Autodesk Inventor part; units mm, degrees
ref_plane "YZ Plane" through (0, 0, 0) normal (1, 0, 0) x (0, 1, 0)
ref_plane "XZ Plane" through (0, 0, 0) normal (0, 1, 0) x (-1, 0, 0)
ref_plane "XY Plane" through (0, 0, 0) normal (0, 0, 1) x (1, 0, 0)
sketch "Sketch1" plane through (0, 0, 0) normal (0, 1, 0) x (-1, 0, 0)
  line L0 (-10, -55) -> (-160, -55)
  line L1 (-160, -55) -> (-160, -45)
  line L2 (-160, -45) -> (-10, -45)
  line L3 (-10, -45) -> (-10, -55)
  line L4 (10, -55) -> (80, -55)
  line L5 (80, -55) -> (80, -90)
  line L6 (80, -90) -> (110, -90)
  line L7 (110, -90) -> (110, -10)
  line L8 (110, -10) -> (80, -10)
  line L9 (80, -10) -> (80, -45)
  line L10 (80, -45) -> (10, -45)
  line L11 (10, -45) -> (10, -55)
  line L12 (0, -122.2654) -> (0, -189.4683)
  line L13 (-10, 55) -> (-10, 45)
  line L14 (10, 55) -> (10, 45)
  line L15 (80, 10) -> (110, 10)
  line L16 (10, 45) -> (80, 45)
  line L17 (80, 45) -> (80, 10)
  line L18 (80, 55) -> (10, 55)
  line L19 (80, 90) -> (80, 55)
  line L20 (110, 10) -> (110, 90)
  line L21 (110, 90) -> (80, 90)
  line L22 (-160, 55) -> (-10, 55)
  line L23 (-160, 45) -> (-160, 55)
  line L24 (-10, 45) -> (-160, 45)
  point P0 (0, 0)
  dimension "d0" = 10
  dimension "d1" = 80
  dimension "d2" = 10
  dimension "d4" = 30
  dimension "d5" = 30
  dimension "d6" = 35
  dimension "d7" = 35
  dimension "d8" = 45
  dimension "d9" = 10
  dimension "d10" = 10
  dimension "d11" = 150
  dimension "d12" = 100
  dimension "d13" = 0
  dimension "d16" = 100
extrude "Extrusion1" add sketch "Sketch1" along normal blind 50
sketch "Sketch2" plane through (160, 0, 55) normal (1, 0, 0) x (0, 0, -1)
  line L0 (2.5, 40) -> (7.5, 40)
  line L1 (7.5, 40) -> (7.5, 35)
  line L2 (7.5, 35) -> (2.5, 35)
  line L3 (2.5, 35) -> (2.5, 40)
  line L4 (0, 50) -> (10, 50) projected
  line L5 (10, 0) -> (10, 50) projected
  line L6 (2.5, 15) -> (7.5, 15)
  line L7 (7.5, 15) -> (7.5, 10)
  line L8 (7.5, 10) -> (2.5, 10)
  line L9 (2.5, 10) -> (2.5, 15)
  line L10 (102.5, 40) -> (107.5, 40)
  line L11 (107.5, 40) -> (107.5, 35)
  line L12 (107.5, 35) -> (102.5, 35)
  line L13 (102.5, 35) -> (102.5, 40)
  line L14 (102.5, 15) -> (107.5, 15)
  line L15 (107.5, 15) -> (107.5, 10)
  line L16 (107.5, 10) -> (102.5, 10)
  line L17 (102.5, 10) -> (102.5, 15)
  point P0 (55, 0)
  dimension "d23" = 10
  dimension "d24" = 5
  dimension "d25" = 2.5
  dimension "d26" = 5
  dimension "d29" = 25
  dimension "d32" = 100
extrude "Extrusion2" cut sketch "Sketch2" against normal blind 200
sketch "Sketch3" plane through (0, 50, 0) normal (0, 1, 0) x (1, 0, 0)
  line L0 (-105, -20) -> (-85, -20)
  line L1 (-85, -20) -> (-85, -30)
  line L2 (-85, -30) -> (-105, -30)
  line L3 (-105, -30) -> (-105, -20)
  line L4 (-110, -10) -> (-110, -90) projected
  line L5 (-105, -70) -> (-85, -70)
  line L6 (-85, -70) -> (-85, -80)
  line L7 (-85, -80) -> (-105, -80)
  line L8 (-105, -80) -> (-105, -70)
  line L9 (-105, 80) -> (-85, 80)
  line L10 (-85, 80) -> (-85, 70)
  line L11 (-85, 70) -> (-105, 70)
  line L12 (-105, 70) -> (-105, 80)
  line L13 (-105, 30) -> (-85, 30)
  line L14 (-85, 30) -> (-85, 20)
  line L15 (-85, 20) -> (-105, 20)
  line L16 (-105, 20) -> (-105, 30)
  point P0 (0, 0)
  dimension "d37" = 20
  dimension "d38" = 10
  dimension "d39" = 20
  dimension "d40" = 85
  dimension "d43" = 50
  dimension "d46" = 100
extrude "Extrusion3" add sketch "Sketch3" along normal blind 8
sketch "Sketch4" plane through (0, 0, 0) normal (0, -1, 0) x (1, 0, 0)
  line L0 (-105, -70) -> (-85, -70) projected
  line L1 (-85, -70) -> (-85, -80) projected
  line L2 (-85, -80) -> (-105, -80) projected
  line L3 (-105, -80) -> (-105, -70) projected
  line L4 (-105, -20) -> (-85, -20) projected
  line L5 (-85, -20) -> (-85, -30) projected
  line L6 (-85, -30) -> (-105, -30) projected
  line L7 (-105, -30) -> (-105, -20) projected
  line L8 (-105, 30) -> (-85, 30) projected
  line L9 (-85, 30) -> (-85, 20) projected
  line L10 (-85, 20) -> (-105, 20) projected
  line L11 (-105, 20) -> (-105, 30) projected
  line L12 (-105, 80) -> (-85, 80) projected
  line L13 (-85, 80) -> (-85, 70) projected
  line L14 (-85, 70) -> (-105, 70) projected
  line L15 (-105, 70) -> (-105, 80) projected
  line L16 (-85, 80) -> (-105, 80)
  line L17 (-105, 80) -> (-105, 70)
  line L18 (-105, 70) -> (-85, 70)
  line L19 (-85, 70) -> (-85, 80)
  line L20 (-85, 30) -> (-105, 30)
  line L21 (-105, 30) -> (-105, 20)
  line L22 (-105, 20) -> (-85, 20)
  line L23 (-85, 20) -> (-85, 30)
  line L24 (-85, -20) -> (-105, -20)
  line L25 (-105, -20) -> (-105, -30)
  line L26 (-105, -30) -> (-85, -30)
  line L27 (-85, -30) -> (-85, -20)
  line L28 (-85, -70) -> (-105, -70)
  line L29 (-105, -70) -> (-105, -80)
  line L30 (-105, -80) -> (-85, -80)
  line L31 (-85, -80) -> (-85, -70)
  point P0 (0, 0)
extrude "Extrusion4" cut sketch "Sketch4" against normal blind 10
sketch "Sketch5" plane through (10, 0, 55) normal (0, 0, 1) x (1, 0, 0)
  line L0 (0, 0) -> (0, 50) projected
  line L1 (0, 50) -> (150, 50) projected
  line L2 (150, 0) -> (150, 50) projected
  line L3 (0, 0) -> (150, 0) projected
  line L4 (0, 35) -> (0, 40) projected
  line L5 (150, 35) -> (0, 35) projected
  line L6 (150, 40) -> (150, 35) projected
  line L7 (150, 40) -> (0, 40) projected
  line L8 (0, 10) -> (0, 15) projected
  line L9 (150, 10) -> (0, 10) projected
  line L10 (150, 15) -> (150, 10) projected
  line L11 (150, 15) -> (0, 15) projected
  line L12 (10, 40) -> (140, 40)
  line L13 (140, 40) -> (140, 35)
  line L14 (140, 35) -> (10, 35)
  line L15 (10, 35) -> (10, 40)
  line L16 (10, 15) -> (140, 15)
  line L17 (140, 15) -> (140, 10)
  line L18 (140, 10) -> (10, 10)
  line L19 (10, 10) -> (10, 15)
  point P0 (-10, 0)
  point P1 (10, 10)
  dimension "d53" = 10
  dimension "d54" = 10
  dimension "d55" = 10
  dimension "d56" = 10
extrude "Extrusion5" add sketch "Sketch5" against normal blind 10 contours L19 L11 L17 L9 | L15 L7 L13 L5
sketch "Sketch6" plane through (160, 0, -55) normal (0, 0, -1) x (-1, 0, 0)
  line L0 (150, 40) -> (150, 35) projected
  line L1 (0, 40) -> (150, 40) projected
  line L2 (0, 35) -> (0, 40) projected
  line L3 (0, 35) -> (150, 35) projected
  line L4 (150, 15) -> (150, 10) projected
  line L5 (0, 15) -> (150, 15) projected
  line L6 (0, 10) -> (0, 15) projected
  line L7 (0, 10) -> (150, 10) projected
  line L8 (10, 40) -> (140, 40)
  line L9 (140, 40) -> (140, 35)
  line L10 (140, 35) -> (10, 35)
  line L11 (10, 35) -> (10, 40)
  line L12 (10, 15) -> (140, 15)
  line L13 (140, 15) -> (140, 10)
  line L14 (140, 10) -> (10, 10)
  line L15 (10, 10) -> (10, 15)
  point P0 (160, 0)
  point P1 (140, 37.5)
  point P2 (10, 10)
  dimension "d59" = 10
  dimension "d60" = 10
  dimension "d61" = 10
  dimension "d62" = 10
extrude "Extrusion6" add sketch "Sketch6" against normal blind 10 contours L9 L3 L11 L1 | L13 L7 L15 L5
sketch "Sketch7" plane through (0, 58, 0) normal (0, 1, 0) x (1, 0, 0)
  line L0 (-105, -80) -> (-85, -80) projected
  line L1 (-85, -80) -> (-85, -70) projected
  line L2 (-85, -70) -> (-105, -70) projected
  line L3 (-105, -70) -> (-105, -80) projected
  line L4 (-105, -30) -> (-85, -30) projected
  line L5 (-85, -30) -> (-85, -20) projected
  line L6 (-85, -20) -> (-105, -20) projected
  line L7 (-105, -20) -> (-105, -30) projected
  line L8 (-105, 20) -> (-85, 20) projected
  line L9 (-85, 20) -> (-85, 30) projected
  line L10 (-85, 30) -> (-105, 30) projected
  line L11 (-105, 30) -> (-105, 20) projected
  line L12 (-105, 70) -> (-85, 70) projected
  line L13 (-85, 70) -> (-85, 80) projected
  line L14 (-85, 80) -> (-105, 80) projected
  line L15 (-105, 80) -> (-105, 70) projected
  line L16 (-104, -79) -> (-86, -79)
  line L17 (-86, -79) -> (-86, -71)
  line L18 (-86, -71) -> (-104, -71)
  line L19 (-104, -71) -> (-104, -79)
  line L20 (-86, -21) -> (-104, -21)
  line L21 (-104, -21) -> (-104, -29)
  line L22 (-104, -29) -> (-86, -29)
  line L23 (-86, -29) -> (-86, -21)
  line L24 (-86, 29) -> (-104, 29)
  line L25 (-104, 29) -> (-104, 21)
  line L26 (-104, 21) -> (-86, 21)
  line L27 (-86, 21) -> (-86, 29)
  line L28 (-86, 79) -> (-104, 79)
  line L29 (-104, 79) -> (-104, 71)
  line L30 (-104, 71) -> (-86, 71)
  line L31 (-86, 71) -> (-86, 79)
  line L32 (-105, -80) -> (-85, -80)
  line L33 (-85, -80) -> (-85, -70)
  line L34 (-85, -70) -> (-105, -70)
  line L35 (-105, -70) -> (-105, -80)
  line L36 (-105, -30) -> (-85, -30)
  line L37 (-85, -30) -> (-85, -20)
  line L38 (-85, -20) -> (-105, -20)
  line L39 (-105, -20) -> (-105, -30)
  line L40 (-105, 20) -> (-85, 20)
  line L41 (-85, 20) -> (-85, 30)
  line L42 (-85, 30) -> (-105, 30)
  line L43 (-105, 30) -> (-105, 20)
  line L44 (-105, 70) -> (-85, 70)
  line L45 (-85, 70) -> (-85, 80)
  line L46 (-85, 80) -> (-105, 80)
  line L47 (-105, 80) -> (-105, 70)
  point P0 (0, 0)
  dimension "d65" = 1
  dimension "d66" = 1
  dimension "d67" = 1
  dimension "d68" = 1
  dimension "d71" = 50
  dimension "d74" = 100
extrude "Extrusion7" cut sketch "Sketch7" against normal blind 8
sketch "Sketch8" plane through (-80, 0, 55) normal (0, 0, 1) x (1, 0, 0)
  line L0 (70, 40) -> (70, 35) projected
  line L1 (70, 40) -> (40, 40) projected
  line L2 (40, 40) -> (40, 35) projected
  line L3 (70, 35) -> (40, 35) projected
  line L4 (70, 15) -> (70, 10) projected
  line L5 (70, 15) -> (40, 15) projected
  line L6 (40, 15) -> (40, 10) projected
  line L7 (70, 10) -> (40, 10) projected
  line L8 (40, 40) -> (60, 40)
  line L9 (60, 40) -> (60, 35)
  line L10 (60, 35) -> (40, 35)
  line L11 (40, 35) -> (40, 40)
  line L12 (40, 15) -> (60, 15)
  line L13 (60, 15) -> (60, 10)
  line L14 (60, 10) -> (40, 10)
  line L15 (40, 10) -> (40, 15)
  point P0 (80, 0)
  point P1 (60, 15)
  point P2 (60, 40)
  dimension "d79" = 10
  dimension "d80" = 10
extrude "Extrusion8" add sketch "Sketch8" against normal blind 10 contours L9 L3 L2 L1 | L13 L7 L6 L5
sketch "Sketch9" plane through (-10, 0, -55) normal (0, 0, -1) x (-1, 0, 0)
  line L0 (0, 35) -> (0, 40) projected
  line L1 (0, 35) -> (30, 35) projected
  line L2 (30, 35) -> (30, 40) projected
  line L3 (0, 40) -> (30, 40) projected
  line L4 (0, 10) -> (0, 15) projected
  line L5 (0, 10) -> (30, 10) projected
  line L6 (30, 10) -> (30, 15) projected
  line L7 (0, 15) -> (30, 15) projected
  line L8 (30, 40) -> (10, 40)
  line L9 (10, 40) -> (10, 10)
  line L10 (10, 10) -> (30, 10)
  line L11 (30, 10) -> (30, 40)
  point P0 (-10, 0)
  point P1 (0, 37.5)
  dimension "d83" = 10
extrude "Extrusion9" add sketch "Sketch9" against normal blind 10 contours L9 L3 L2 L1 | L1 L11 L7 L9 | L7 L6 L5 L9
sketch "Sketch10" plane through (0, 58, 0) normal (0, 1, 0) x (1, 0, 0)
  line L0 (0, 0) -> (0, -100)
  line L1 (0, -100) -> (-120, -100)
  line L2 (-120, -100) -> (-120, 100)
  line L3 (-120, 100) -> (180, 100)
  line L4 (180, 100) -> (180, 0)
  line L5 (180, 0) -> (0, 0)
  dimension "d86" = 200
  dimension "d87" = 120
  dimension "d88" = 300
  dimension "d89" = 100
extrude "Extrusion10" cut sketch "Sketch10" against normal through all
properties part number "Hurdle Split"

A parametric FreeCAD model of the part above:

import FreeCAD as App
import Part
import Sketcher

doc = App.newDocument("Part")
body = doc.addObject("PartDesign::Body", "Body")
body.AllowCompound = True

# Sketch on XZ plane
sketch1 = body.newObject("Sketcher::SketchObject", "Sketch")
sketch1.AttachmentSupport = (doc.getObject("XZ_Plane"), [""])
sketch1.MapMode = "FlatFace"
sketch1.addGeometry([
    Part.LineSegment(App.Vector(160, -55, 0), App.Vector(10, -55, 0)),  # 0
    Part.LineSegment(App.Vector(10, -55, 0), App.Vector(10, -45, 0)),  # 1
    Part.LineSegment(App.Vector(10, -45, 0), App.Vector(160, -45, 0)),  # 2
    Part.LineSegment(App.Vector(160, -45, 0), App.Vector(160, -55, 0)),  # 3
    Part.LineSegment(App.Vector(-10, -45, 0), App.Vector(-10, -55, 0)),  # 4
    Part.LineSegment(App.Vector(-10, -55, 0), App.Vector(-80, -55, 0)),  # 5
    Part.LineSegment(App.Vector(-80, -55, 0), App.Vector(-80, -90, 0)),  # 6
    Part.LineSegment(App.Vector(-80, -90, 0), App.Vector(-110, -90, 0)),  # 7
    Part.LineSegment(App.Vector(-110, -90, 0), App.Vector(-110, -10, 0)),  # 8
    Part.LineSegment(App.Vector(-110, -10, 0), App.Vector(-80, -10, 0)),  # 9
    Part.LineSegment(App.Vector(-80, -10, 0), App.Vector(-80, -45, 0)),  # 10
    Part.LineSegment(App.Vector(-80, -45, 0), App.Vector(-10, -45, 0)),  # 11
    Part.LineSegment(App.Vector(10, 45, 0), App.Vector(10, 55, 0)),  # 12
    Part.LineSegment(App.Vector(10, 55, 0), App.Vector(160, 55, 0)),  # 13
    Part.LineSegment(App.Vector(160, 55, 0), App.Vector(160, 45, 0)),  # 14
    Part.LineSegment(App.Vector(160, 45, 0), App.Vector(10, 45, 0)),  # 15
    Part.LineSegment(App.Vector(-80, 55, 0), App.Vector(-10, 55, 0)),  # 16
    Part.LineSegment(App.Vector(-10, 55, 0), App.Vector(-10, 45, 0)),  # 17
    Part.LineSegment(App.Vector(-10, 45, 0), App.Vector(-80, 45, 0)),  # 18
    Part.LineSegment(App.Vector(-80, 45, 0), App.Vector(-80, 10, 0)),  # 19
    Part.LineSegment(App.Vector(-80, 10, 0), App.Vector(-110, 10, 0)),  # 20
    Part.LineSegment(App.Vector(-110, 10, 0), App.Vector(-110, 90, 0)),  # 21
    Part.LineSegment(App.Vector(-110, 90, 0), App.Vector(-80, 90, 0)),  # 22
    Part.LineSegment(App.Vector(-80, 90, 0), App.Vector(-80, 55, 0)),  # 23
], False)
sketch1.addConstraint([
    Sketcher.Constraint("Coincident", 0, 2, 1, 1),
    Sketcher.Constraint("Coincident", 1, 2, 2, 1),
    Sketcher.Constraint("Coincident", 2, 2, 3, 1),
    Sketcher.Constraint("Coincident", 3, 2, 0, 1),
    Sketcher.Constraint("Coincident", 4, 2, 5, 1),
    Sketcher.Constraint("Coincident", 5, 2, 6, 1),
    Sketcher.Constraint("Coincident", 6, 2, 7, 1),
    Sketcher.Constraint("Coincident", 7, 2, 8, 1),
    Sketcher.Constraint("Coincident", 8, 2, 9, 1),
    Sketcher.Constraint("Coincident", 9, 2, 10, 1),
    Sketcher.Constraint("Coincident", 10, 2, 11, 1),
    Sketcher.Constraint("Coincident", 11, 2, 4, 1),
    Sketcher.Constraint("Coincident", 12, 2, 13, 1),
    Sketcher.Constraint("Coincident", 13, 2, 14, 1),
    Sketcher.Constraint("Coincident", 14, 2, 15, 1),
    Sketcher.Constraint("Coincident", 15, 2, 12, 1),
    Sketcher.Constraint("Coincident", 16, 2, 17, 1),
    Sketcher.Constraint("Coincident", 17, 2, 18, 1),
    Sketcher.Constraint("Coincident", 18, 2, 19, 1),
    Sketcher.Constraint("Coincident", 19, 2, 20, 1),
    Sketcher.Constraint("Coincident", 20, 2, 21, 1),
    Sketcher.Constraint("Coincident", 21, 2, 22, 1),
    Sketcher.Constraint("Coincident", 22, 2, 23, 1),
    Sketcher.Constraint("Coincident", 23, 2, 16, 1),
    Sketcher.Constraint("Horizontal", 0),
    Sketcher.Constraint("Vertical", 1),
    Sketcher.Constraint("Horizontal", 2),
    Sketcher.Constraint("Vertical", 3),
    Sketcher.Constraint("Vertical", 4),
    Sketcher.Constraint("Horizontal", 5),
    Sketcher.Constraint("Vertical", 6),
    Sketcher.Constraint("Horizontal", 7),
    Sketcher.Constraint("Vertical", 8),
    Sketcher.Constraint("Horizontal", 9),
    Sketcher.Constraint("Vertical", 10),
    Sketcher.Constraint("Horizontal", 11),
    Sketcher.Constraint("Vertical", 12),
    Sketcher.Constraint("Horizontal", 13),
    Sketcher.Constraint("Vertical", 14),
    Sketcher.Constraint("Horizontal", 15),
    Sketcher.Constraint("Horizontal", 16),
    Sketcher.Constraint("Vertical", 17),
    Sketcher.Constraint("Horizontal", 18),
    Sketcher.Constraint("Vertical", 19),
    Sketcher.Constraint("Horizontal", 20),
    Sketcher.Constraint("Vertical", 21),
    Sketcher.Constraint("Horizontal", 22),
    Sketcher.Constraint("Vertical", 23),
    Sketcher.Constraint("Symmetric", 4, 2, 12, 2, -1, 1),
    Sketcher.Constraint("Symmetric", 0, 2, 16, 2, -1, 1),
    Sketcher.Constraint("Symmetric", 0, 2, 4, 2, -2),
    Sketcher.Constraint("Symmetric", 2, 2, 14, 2, -1),
    Sketcher.Constraint("Symmetric", 10, 2, 18, 2, -1),
    Sketcher.Constraint("Symmetric", 8, 2, 20, 2, -1),
    Sketcher.Constraint("Symmetric", 6, 2, 22, 2, -1),
    Sketcher.Constraint("Horizontal", 2, 2, 10, 2),
    Sketcher.Constraint("Vertical", 6, 2, 9, 2),
    Sketcher.Constraint("Equal", 6, 10),
    Sketcher.Constraint("DistanceX", 0, 2, 0, 1, 150.0),
    Sketcher.Constraint("DistanceX", 7, 2, 7, 1, 30.0),
    Sketcher.Constraint("DistanceY", 1, 1, 1, 2, 10.0),
    Sketcher.Constraint("DistanceY", 6, 2, 6, 1, 35.0),
    Sketcher.Constraint("DistanceX", -1, 1, 0, 2, 10.0),
    Sketcher.Constraint("DistanceY", 1, 2, -1, 1, 45.0),
    Sketcher.Constraint("DistanceX", 5, 2, -1, 1, 80.0),
])
pad1 = body.newObject("PartDesign::Pad", "Pad")
pad1.Profile = sketch1
pad1.Length = 50
pad1.Reversed = True

# Sketch on YZ plane
sketch2 = body.newObject("Sketcher::SketchObject", "Sketch001")
sketch2.AttachmentSupport = (doc.getObject("YZ_Plane"), [""])
sketch2.MapMode = "FlatFace"
sketch2.AttachmentOffset = App.Placement(App.Vector(0, 0, 160), App.Rotation())
sketch2.addGeometry([
    Part.LineSegment(App.Vector(40, 48, 0), App.Vector(40, 52, 0)),  # 0
    Part.LineSegment(App.Vector(40, 52, 0), App.Vector(35, 52, 0)),  # 1
    Part.LineSegment(App.Vector(35, 52, 0), App.Vector(35, 48, 0)),  # 2
    Part.LineSegment(App.Vector(35, 48, 0), App.Vector(40, 48, 0)),  # 3
    Part.LineSegment(App.Vector(15, 48, 0), App.Vector(15, 52, 0)),  # 4
    Part.LineSegment(App.Vector(15, 52, 0), App.Vector(10, 52, 0)),  # 5
    Part.LineSegment(App.Vector(10, 52, 0), App.Vector(10, 48, 0)),  # 6
    Part.LineSegment(App.Vector(10, 48, 0), App.Vector(15, 48, 0)),  # 7
    Part.LineSegment(App.Vector(40, -52, 0), App.Vector(40, -48, 0)),  # 8
    Part.LineSegment(App.Vector(40, -48, 0), App.Vector(35, -48, 0)),  # 9
    Part.LineSegment(App.Vector(35, -48, 0), App.Vector(35, -52, 0)),  # 10
    Part.LineSegment(App.Vector(35, -52, 0), App.Vector(40, -52, 0)),  # 11
    Part.LineSegment(App.Vector(15, -52, 0), App.Vector(15, -48, 0)),  # 12
    Part.LineSegment(App.Vector(15, -48, 0), App.Vector(10, -48, 0)),  # 13
    Part.LineSegment(App.Vector(10, -48, 0), App.Vector(10, -52, 0)),  # 14
    Part.LineSegment(App.Vector(10, -52, 0), App.Vector(15, -52, 0)),  # 15
], False)
sketch2.addConstraint([
    Sketcher.Constraint("Coincident", 0, 2, 1, 1),
    Sketcher.Constraint("Coincident", 1, 2, 2, 1),
    Sketcher.Constraint("Coincident", 2, 2, 3, 1),
    Sketcher.Constraint("Coincident", 3, 2, 0, 1),
    Sketcher.Constraint("Coincident", 4, 2, 5, 1),
    Sketcher.Constraint("Coincident", 5, 2, 6, 1),
    Sketcher.Constraint("Coincident", 6, 2, 7, 1),
    Sketcher.Constraint("Coincident", 7, 2, 4, 1),
    Sketcher.Constraint("Coincident", 8, 2, 9, 1),
    Sketcher.Constraint("Coincident", 9, 2, 10, 1),
    Sketcher.Constraint("Coincident", 10, 2, 11, 1),
    Sketcher.Constraint("Coincident", 11, 2, 8, 1),
    Sketcher.Constraint("Coincident", 12, 2, 13, 1),
    Sketcher.Constraint("Coincident", 13, 2, 14, 1),
    Sketcher.Constraint("Coincident", 14, 2, 15, 1),
    Sketcher.Constraint("Coincident", 15, 2, 12, 1),
    Sketcher.Constraint("Vertical", 0),
    Sketcher.Constraint("Horizontal", 1),
    Sketcher.Constraint("Vertical", 2),
    Sketcher.Constraint("Horizontal", 3),
    Sketcher.Constraint("Vertical", 4),
    Sketcher.Constraint("Horizontal", 5),
    Sketcher.Constraint("Vertical", 6),
    Sketcher.Constraint("Horizontal", 7),
    Sketcher.Constraint("Vertical", 8),
    Sketcher.Constraint("Horizontal", 9),
    Sketcher.Constraint("Vertical", 10),
    Sketcher.Constraint("Horizontal", 11),
    Sketcher.Constraint("Vertical", 12),
    Sketcher.Constraint("Horizontal", 13),
    Sketcher.Constraint("Vertical", 14),
    Sketcher.Constraint("Horizontal", 15),
    Sketcher.Constraint("Symmetric", 3, 2, 8, 2, -1),
    Sketcher.Constraint("Symmetric", 1, 2, 10, 2, -1),
    Sketcher.Constraint("Symmetric", 7, 2, 12, 2, -1),
    Sketcher.Constraint("Symmetric", 5, 2, 14, 2, -1),
    Sketcher.Constraint("Horizontal", 1, 2, 4, 2),
    Sketcher.Constraint("Horizontal", 3, 2, 6, 2),
    Sketcher.Constraint("Equal", 3, 5),
    Sketcher.Constraint("Equal", 15, 0),
    Sketcher.Constraint("DistanceX", 1, 2, 1, 1, 5.0),
    Sketcher.Constraint("DistanceX", -1, 1, 5, 2, 10.0),
    Sketcher.Constraint("DistanceX", 4, 2, 0, 2, 25.0),
    Sketcher.Constraint("DistanceY", 8, 2, 0, 2, 100.0),
])
pocket1 = body.newObject("PartDesign::Pocket", "Pocket")
pocket1.Profile = sketch2
pocket1.Length = 200

# Sketch on XZ plane
sketch3 = body.newObject("Sketcher::SketchObject", "Sketch002")
sketch3.AttachmentSupport = (doc.getObject("XZ_Plane"), [""])
sketch3.MapMode = "FlatFace"
sketch3.AttachmentOffset = App.Placement(App.Vector(0, 0, -50), App.Rotation())
sketch3.addGeometry([
    Part.LineSegment(App.Vector(-85, 20, 0), App.Vector(-105, 20, 0)),  # 0
    Part.LineSegment(App.Vector(-105, 20, 0), App.Vector(-105, 30, 0)),  # 1
    Part.LineSegment(App.Vector(-105, 30, 0), App.Vector(-85, 30, 0)),  # 2
    Part.LineSegment(App.Vector(-85, 30, 0), App.Vector(-85, 20, 0)),  # 3
    Part.LineSegment(App.Vector(-85, 70, 0), App.Vector(-105, 70, 0)),  # 4
    Part.LineSegment(App.Vector(-105, 70, 0), App.Vector(-105, 80, 0)),  # 5
    Part.LineSegment(App.Vector(-105, 80, 0), App.Vector(-85, 80, 0)),  # 6
    Part.LineSegment(App.Vector(-85, 80, 0), App.Vector(-85, 70, 0)),  # 7
    Part.LineSegment(App.Vector(-85, -80, 0), App.Vector(-105, -80, 0)),  # 8
    Part.LineSegment(App.Vector(-105, -80, 0), App.Vector(-105, -70, 0)),  # 9
    Part.LineSegment(App.Vector(-105, -70, 0), App.Vector(-85, -70, 0)),  # 10
    Part.LineSegment(App.Vector(-85, -70, 0), App.Vector(-85, -80, 0)),  # 11
    Part.LineSegment(App.Vector(-85, -30, 0), App.Vector(-105, -30, 0)),  # 12
    Part.LineSegment(App.Vector(-105, -30, 0), App.Vector(-105, -20, 0)),  # 13
    Part.LineSegment(App.Vector(-105, -20, 0), App.Vector(-85, -20, 0)),  # 14
    Part.LineSegment(App.Vector(-85, -20, 0), App.Vector(-85, -30, 0)),  # 15
], False)
sketch3.addConstraint([
    Sketcher.Constraint("Coincident", 0, 2, 1, 1),
    Sketcher.Constraint("Coincident", 1, 2, 2, 1),
    Sketcher.Constraint("Coincident", 2, 2, 3, 1),
    Sketcher.Constraint("Coincident", 3, 2, 0, 1),
    Sketcher.Constraint("Coincident", 4, 2, 5, 1),
    Sketcher.Constraint("Coincident", 5, 2, 6, 1),
    Sketcher.Constraint("Coincident", 6, 2, 7, 1),
    Sketcher.Constraint("Coincident", 7, 2, 4, 1),
    Sketcher.Constraint("Coincident", 8, 2, 9, 1),
    Sketcher.Constraint("Coincident", 9, 2, 10, 1),
    Sketcher.Constraint("Coincident", 10, 2, 11, 1),
    Sketcher.Constraint("Coincident", 11, 2, 8, 1),
    Sketcher.Constraint("Coincident", 12, 2, 13, 1),
    Sketcher.Constraint("Coincident", 13, 2, 14, 1),
    Sketcher.Constraint("Coincident", 14, 2, 15, 1),
    Sketcher.Constraint("Coincident", 15, 2, 12, 1),
    Sketcher.Constraint("Horizontal", 0),
    Sketcher.Constraint("Vertical", 1),
    Sketcher.Constraint("Horizontal", 2),
    Sketcher.Constraint("Vertical", 3),
    Sketcher.Constraint("Horizontal", 4),
    Sketcher.Constraint("Vertical", 5),
    Sketcher.Constraint("Horizontal", 6),
    Sketcher.Constraint("Vertical", 7),
    Sketcher.Constraint("Horizontal", 8),
    Sketcher.Constraint("Vertical", 9),
    Sketcher.Constraint("Horizontal", 10),
    Sketcher.Constraint("Vertical", 11),
    Sketcher.Constraint("Horizontal", 12),
    Sketcher.Constraint("Vertical", 13),
    Sketcher.Constraint("Horizontal", 14),
    Sketcher.Constraint("Vertical", 15),
    Sketcher.Constraint("Symmetric", 5, 2, 8, 2, -1),
    Sketcher.Constraint("Symmetric", 7, 2, 10, 2, -1),
    Sketcher.Constraint("Symmetric", 1, 2, 12, 2, -1),
    Sketcher.Constraint("Symmetric", 3, 2, 14, 2, -1),
    Sketcher.Constraint("Vertical", 1, 2, 4, 2),
    Sketcher.Constraint("Vertical", 3, 2, 6, 2),
    Sketcher.Constraint("Equal", 3, 5),
    Sketcher.Constraint("DistanceX", 0, 2, 0, 1, 20.0),
    Sketcher.Constraint("DistanceY", 1, 1, 1, 2, 10.0),
    Sketcher.Constraint("DistanceY", -1, 1, 0, 2, 20.0),
    Sketcher.Constraint("DistanceX", 2, 2, -1, 1, 85.0),
    Sketcher.Constraint("DistanceY", 0, 2, 4, 2, 50.0),
])
pad2 = body.newObject("PartDesign::Pad", "Pad001")
pad2.Profile = sketch3
pad2.Length = 8
pad2.Reversed = True

# Sketch on XZ plane
sketch4 = body.newObject("Sketcher::SketchObject", "Sketch003")
sketch4.AttachmentSupport = (doc.getObject("XZ_Plane"), [""])
sketch4.MapMode = "FlatFace"
sketch4.addGeometry([
    Part.LineSegment(App.Vector(-85, -70, 0), App.Vector(-105, -70, 0)),  # 0
    Part.LineSegment(App.Vector(-105, -70, 0), App.Vector(-105, -80, 0)),  # 1
    Part.LineSegment(App.Vector(-105, -80, 0), App.Vector(-85, -80, 0)),  # 2
    Part.LineSegment(App.Vector(-85, -80, 0), App.Vector(-85, -70, 0)),  # 3
    Part.LineSegment(App.Vector(-85, -20, 0), App.Vector(-105, -20, 0)),  # 4
    Part.LineSegment(App.Vector(-105, -20, 0), App.Vector(-105, -30, 0)),  # 5
    Part.LineSegment(App.Vector(-105, -30, 0), App.Vector(-85, -30, 0)),  # 6
    Part.LineSegment(App.Vector(-85, -30, 0), App.Vector(-85, -20, 0)),  # 7
    Part.LineSegment(App.Vector(-85, 30, 0), App.Vector(-105, 30, 0)),  # 8
    Part.LineSegment(App.Vector(-105, 30, 0), App.Vector(-105, 20, 0)),  # 9
    Part.LineSegment(App.Vector(-105, 20, 0), App.Vector(-85, 20, 0)),  # 10
    Part.LineSegment(App.Vector(-85, 20, 0), App.Vector(-85, 30, 0)),  # 11
    Part.LineSegment(App.Vector(-85, 80, 0), App.Vector(-105, 80, 0)),  # 12
    Part.LineSegment(App.Vector(-105, 80, 0), App.Vector(-105, 70, 0)),  # 13
    Part.LineSegment(App.Vector(-105, 70, 0), App.Vector(-85, 70, 0)),  # 14
    Part.LineSegment(App.Vector(-85, 70, 0), App.Vector(-85, 80, 0)),  # 15
], False)
sketch4.addConstraint([
    Sketcher.Constraint("Coincident", 0, 2, 1, 1),
    Sketcher.Constraint("Coincident", 1, 2, 2, 1),
    Sketcher.Constraint("Coincident", 2, 2, 3, 1),
    Sketcher.Constraint("Coincident", 3, 2, 0, 1),
    Sketcher.Constraint("Coincident", 4, 2, 5, 1),
    Sketcher.Constraint("Coincident", 5, 2, 6, 1),
    Sketcher.Constraint("Coincident", 6, 2, 7, 1),
    Sketcher.Constraint("Coincident", 7, 2, 4, 1),
    Sketcher.Constraint("Coincident", 8, 2, 9, 1),
    Sketcher.Constraint("Coincident", 9, 2, 10, 1),
    Sketcher.Constraint("Coincident", 10, 2, 11, 1),
    Sketcher.Constraint("Coincident", 11, 2, 8, 1),
    Sketcher.Constraint("Coincident", 12, 2, 13, 1),
    Sketcher.Constraint("Coincident", 13, 2, 14, 1),
    Sketcher.Constraint("Coincident", 14, 2, 15, 1),
    Sketcher.Constraint("Coincident", 15, 2, 12, 1),
    Sketcher.Constraint("Horizontal", 0),
    Sketcher.Constraint("Vertical", 1),
    Sketcher.Constraint("Horizontal", 2),
    Sketcher.Constraint("Vertical", 3),
    Sketcher.Constraint("Horizontal", 4),
    Sketcher.Constraint("Vertical", 5),
    Sketcher.Constraint("Horizontal", 6),
    Sketcher.Constraint("Vertical", 7),
    Sketcher.Constraint("Horizontal", 8),
    Sketcher.Constraint("Vertical", 9),
    Sketcher.Constraint("Horizontal", 10),
    Sketcher.Constraint("Vertical", 11),
    Sketcher.Constraint("Horizontal", 12),
    Sketcher.Constraint("Vertical", 13),
    Sketcher.Constraint("Horizontal", 14),
    Sketcher.Constraint("Vertical", 15),
    Sketcher.Constraint("Symmetric", 5, 2, 8, 2, -1),
    Sketcher.Constraint("Symmetric", 7, 2, 10, 2, -1),
    Sketcher.Constraint("Symmetric", 1, 2, 12, 2, -1),
    Sketcher.Constraint("Symmetric", 3, 2, 14, 2, -1),
    Sketcher.Constraint("Vertical", 1, 2, 4, 2),
    Sketcher.Constraint("Vertical", 3, 2, 6, 2),
    Sketcher.Constraint("Equal", 3, 5),
    Sketcher.Constraint("DistanceX", 0, 2, 0, 1, 20.0),
    Sketcher.Constraint("DistanceY", 1, 2, 1, 1, 10.0),
    Sketcher.Constraint("DistanceX", 0, 2, -1, 1, 105.0),
    Sketcher.Constraint("DistanceY", 0, 2, -1, 1, 70.0),
    Sketcher.Constraint("DistanceY", 4, 2, -1, 1, 20.0),
])
pocket2 = body.newObject("PartDesign::Pocket", "Pocket001")
pocket2.Profile = sketch4
pocket2.Length = 10

# Sketch on XY plane
sketch5 = body.newObject("Sketcher::SketchObject", "Sketch004")
sketch5.AttachmentSupport = (doc.getObject("XY_Plane"), [""])
sketch5.MapMode = "FlatFace"
sketch5.AttachmentOffset = App.Placement(App.Vector(0, 0, 55), App.Rotation())
sketch5.addGeometry([
    Part.LineSegment(App.Vector(20, 15, 0), App.Vector(20, 10, 0)),  # 0
    Part.LineSegment(App.Vector(20, 10, 0), App.Vector(150, 10, 0)),  # 1
    Part.LineSegment(App.Vector(150, 10, 0), App.Vector(150, 15, 0)),  # 2
    Part.LineSegment(App.Vector(150, 15, 0), App.Vector(20, 15, 0)),  # 3
    Part.LineSegment(App.Vector(20, 40, 0), App.Vector(20, 35, 0)),  # 4
    Part.LineSegment(App.Vector(20, 35, 0), App.Vector(150, 35, 0)),  # 5
    Part.LineSegment(App.Vector(150, 35, 0), App.Vector(150, 40, 0)),  # 6
    Part.LineSegment(App.Vector(150, 40, 0), App.Vector(20, 40, 0)),  # 7
], False)
sketch5.addConstraint([
    Sketcher.Constraint("Coincident", 0, 2, 1, 1),
    Sketcher.Constraint("Coincident", 1, 2, 2, 1),
    Sketcher.Constraint("Coincident", 2, 2, 3, 1),
    Sketcher.Constraint("Coincident", 3, 2, 0, 1),
    Sketcher.Constraint("Coincident", 4, 2, 5, 1),
    Sketcher.Constraint("Coincident", 5, 2, 6, 1),
    Sketcher.Constraint("Coincident", 6, 2, 7, 1),
    Sketcher.Constraint("Coincident", 7, 2, 4, 1),
    Sketcher.Constraint("Vertical", 0),
    Sketcher.Constraint("Horizontal", 1),
    Sketcher.Constraint("Vertical", 2),
    Sketcher.Constraint("Horizontal", 3),
    Sketcher.Constraint("Vertical", 4),
    Sketcher.Constraint("Horizontal", 5),
    Sketcher.Constraint("Vertical", 6),
    Sketcher.Constraint("Horizontal", 7),
    Sketcher.Constraint("Vertical", 3, 2, 4, 2),
    Sketcher.Constraint("Vertical", 2, 2, 5, 2),
    Sketcher.Constraint("Equal", 2, 4),
    Sketcher.Constraint("DistanceY", -1, 1, 0, 2, 10.0),
    Sketcher.Constraint("DistanceX", 1, 1, 1, 2, 130.0),
    Sketcher.Constraint("DistanceY", 0, 2, 0, 1, 5.0),
    Sketcher.Constraint("DistanceX", -1, 1, 0, 2, 20.0),
    Sketcher.Constraint("DistanceY", -1, 1, 4, 2, 35.0),
])
pad3 = body.newObject("PartDesign::Pad", "Pad002")
pad3.Profile = sketch5
pad3.Length = 10
pad3.Reversed = True

# Sketch on XY plane
sketch6 = body.newObject("Sketcher::SketchObject", "Sketch005")
sketch6.AttachmentSupport = (doc.getObject("XY_Plane"), [""])
sketch6.MapMode = "FlatFace"
sketch6.AttachmentOffset = App.Placement(App.Vector(0, 0, -55), App.Rotation())
sketch6.addGeometry([
    Part.LineSegment(App.Vector(20, 35, 0), App.Vector(20, 40, 0)),  # 0
    Part.LineSegment(App.Vector(20, 40, 0), App.Vector(150, 40, 0)),  # 1
    Part.LineSegment(App.Vector(150, 40, 0), App.Vector(150, 35, 0)),  # 2
    Part.LineSegment(App.Vector(150, 35, 0), App.Vector(20, 35, 0)),  # 3
    Part.LineSegment(App.Vector(20, 10, 0), App.Vector(20, 15, 0)),  # 4
    Part.LineSegment(App.Vector(20, 15, 0), App.Vector(150, 15, 0)),  # 5
    Part.LineSegment(App.Vector(150, 15, 0), App.Vector(150, 10, 0)),  # 6
    Part.LineSegment(App.Vector(150, 10, 0), App.Vector(20, 10, 0)),  # 7
], False)
sketch6.addConstraint([
    Sketcher.Constraint("Coincident", 0, 2, 1, 1),
    Sketcher.Constraint("Coincident", 1, 2, 2, 1),
    Sketcher.Constraint("Coincident", 2, 2, 3, 1),
    Sketcher.Constraint("Coincident", 3, 2, 0, 1),
    Sketcher.Constraint("Coincident", 4, 2, 5, 1),
    Sketcher.Constraint("Coincident", 5, 2, 6, 1),
    Sketcher.Constraint("Coincident", 6, 2, 7, 1),
    Sketcher.Constraint("Coincident", 7, 2, 4, 1),
    Sketcher.Constraint("Vertical", 0),
    Sketcher.Constraint("Horizontal", 1),
    Sketcher.Constraint("Vertical", 2),
    Sketcher.Constraint("Horizontal", 3),
    Sketcher.Constraint("Vertical", 4),
    Sketcher.Constraint("Horizontal", 5),
    Sketcher.Constraint("Vertical", 6),
    Sketcher.Constraint("Horizontal", 7),
    Sketcher.Constraint("Vertical", 3, 2, 4, 2),
    Sketcher.Constraint("Vertical", 2, 2, 5, 2),
    Sketcher.Constraint("Equal", 2, 4),
    Sketcher.Constraint("DistanceY", -1, 1, 6, 2, 10.0),
    Sketcher.Constraint("DistanceX", 1, 1, 1, 2, 130.0),
    Sketcher.Constraint("DistanceY", 0, 1, 0, 2, 5.0),
    Sketcher.Constraint("DistanceX", -1, 1, 0, 2, 20.0),
    Sketcher.Constraint("DistanceY", -1, 1, 0, 2, 40.0),
])
pad4 = body.newObject("PartDesign::Pad", "Pad003")
pad4.Profile = sketch6
pad4.Length = 10

# Sketch on XZ plane
sketch7 = body.newObject("Sketcher::SketchObject", "Sketch006")
sketch7.AttachmentSupport = (doc.getObject("XZ_Plane"), [""])
sketch7.MapMode = "FlatFace"
sketch7.AttachmentOffset = App.Placement(App.Vector(0, 0, -58), App.Rotation())
sketch7.addGeometry([
    Part.LineSegment(App.Vector(-105, 70, 0), App.Vector(-105, 80, 0)),  # 0
    Part.LineSegment(App.Vector(-105, 80, 0), App.Vector(-85, 80, 0)),  # 1
    Part.LineSegment(App.Vector(-85, 80, 0), App.Vector(-85, 70, 0)),  # 2
    Part.LineSegment(App.Vector(-85, 70, 0), App.Vector(-105, 70, 0)),  # 3
    Part.LineSegment(App.Vector(-86, 79, 0), App.Vector(-104, 79, 0)),  # 4
    Part.LineSegment(App.Vector(-104, 79, 0), App.Vector(-104, 71, 0)),  # 5
    Part.LineSegment(App.Vector(-104, 71, 0), App.Vector(-86, 71, 0)),  # 6
    Part.LineSegment(App.Vector(-86, 71, 0), App.Vector(-86, 79, 0)),  # 7
    Part.LineSegment(App.Vector(-105, 20, 0), App.Vector(-105, 30, 0)),  # 8
    Part.LineSegment(App.Vector(-105, 30, 0), App.Vector(-85, 30, 0)),  # 9
    Part.LineSegment(App.Vector(-85, 30, 0), App.Vector(-85, 20, 0)),  # 10
    Part.LineSegment(App.Vector(-85, 20, 0), App.Vector(-105, 20, 0)),  # 11
    Part.LineSegment(App.Vector(-104, 21, 0), App.Vector(-86, 21, 0)),  # 12
    Part.LineSegment(App.Vector(-86, 21, 0), App.Vector(-86, 29, 0)),  # 13
    Part.LineSegment(App.Vector(-86, 29, 0), App.Vector(-104, 29, 0)),  # 14
    Part.LineSegment(App.Vector(-104, 29, 0), App.Vector(-104, 21, 0)),  # 15
    Part.LineSegment(App.Vector(-105, -30, 0), App.Vector(-105, -20, 0)),  # 16
    Part.LineSegment(App.Vector(-105, -20, 0), App.Vector(-85, -20, 0)),  # 17
    Part.LineSegment(App.Vector(-85, -20, 0), App.Vector(-85, -30, 0)),  # 18
    Part.LineSegment(App.Vector(-85, -30, 0), App.Vector(-105, -30, 0)),  # 19
    Part.LineSegment(App.Vector(-104, -29, 0), App.Vector(-86, -29, 0)),  # 20
    Part.LineSegment(App.Vector(-86, -29, 0), App.Vector(-86, -21, 0)),  # 21
    Part.LineSegment(App.Vector(-86, -21, 0), App.Vector(-104, -21, 0)),  # 22
    Part.LineSegment(App.Vector(-104, -21, 0), App.Vector(-104, -29, 0)),  # 23
    Part.LineSegment(App.Vector(-105, -80, 0), App.Vector(-105, -70, 0)),  # 24
    Part.LineSegment(App.Vector(-105, -70, 0), App.Vector(-85, -70, 0)),  # 25
    Part.LineSegment(App.Vector(-85, -70, 0), App.Vector(-85, -80, 0)),  # 26
    Part.LineSegment(App.Vector(-85, -80, 0), App.Vector(-105, -80, 0)),  # 27
    Part.LineSegment(App.Vector(-104, -79, 0), App.Vector(-86, -79, 0)),  # 28
    Part.LineSegment(App.Vector(-86, -79, 0), App.Vector(-86, -71, 0)),  # 29
    Part.LineSegment(App.Vector(-86, -71, 0), App.Vector(-104, -71, 0)),  # 30
    Part.LineSegment(App.Vector(-104, -71, 0), App.Vector(-104, -79, 0)),  # 31
], False)
sketch7.addConstraint([
    Sketcher.Constraint("Coincident", 0, 2, 1, 1),
    Sketcher.Constraint("Coincident", 1, 2, 2, 1),
    Sketcher.Constraint("Coincident", 2, 2, 3, 1),
    Sketcher.Constraint("Coincident", 3, 2, 0, 1),
    Sketcher.Constraint("Coincident", 4, 2, 5, 1),
    Sketcher.Constraint("Coincident", 5, 2, 6, 1),
    Sketcher.Constraint("Coincident", 6, 2, 7, 1),
    Sketcher.Constraint("Coincident", 7, 2, 4, 1),
    Sketcher.Constraint("Coincident", 8, 2, 9, 1),
    Sketcher.Constraint("Coincident", 9, 2, 10, 1),
    Sketcher.Constraint("Coincident", 10, 2, 11, 1),
    Sketcher.Constraint("Coincident", 11, 2, 8, 1),
    Sketcher.Constraint("Coincident", 12, 2, 13, 1),
    Sketcher.Constraint("Coincident", 13, 2, 14, 1),
    Sketcher.Constraint("Coincident", 14, 2, 15, 1),
    Sketcher.Constraint("Coincident", 15, 2, 12, 1),
    Sketcher.Constraint("Coincident", 16, 2, 17, 1),
    Sketcher.Constraint("Coincident", 17, 2, 18, 1),
    Sketcher.Constraint("Coincident", 18, 2, 19, 1),
    Sketcher.Constraint("Coincident", 19, 2, 16, 1),
    Sketcher.Constraint("Coincident", 20, 2, 21, 1),
    Sketcher.Constraint("Coincident", 21, 2, 22, 1),
    Sketcher.Constraint("Coincident", 22, 2, 23, 1),
    Sketcher.Constraint("Coincident", 23, 2, 20, 1),
    Sketcher.Constraint("Coincident", 24, 2, 25, 1),
    Sketcher.Constraint("Coincident", 25, 2, 26, 1),
    Sketcher.Constraint("Coincident", 26, 2, 27, 1),
    Sketcher.Constraint("Coincident", 27, 2, 24, 1),
    Sketcher.Constraint("Coincident", 28, 2, 29, 1),
    Sketcher.Constraint("Coincident", 29, 2, 30, 1),
    Sketcher.Constraint("Coincident", 30, 2, 31, 1),
    Sketcher.Constraint("Coincident", 31, 2, 28, 1),
    Sketcher.Constraint("Vertical", 0),
    Sketcher.Constraint("Horizontal", 1),
    Sketcher.Constraint("Vertical", 2),
    Sketcher.Constraint("Horizontal", 3),
    Sketcher.Constraint("Horizontal", 4),
    Sketcher.Constraint("Vertical", 5),
    Sketcher.Constraint("Horizontal", 6),
    Sketcher.Constraint("Vertical", 7),
    Sketcher.Constraint("Vertical", 8),
    Sketcher.Constraint("Horizontal", 9),
    Sketcher.Constraint("Vertical", 10),
    Sketcher.Constraint("Horizontal", 11),
    Sketcher.Constraint("Horizontal", 12),
    Sketcher.Constraint("Vertical", 13),
    Sketcher.Constraint("Horizontal", 14),
    Sketcher.Constraint("Vertical", 15),
    Sketcher.Constraint("Vertical", 16),
    Sketcher.Constraint("Horizontal", 17),
    Sketcher.Constraint("Vertical", 18),
    Sketcher.Constraint("Horizontal", 19),
    Sketcher.Constraint("Horizontal", 20),
    Sketcher.Constraint("Vertical", 21),
    Sketcher.Constraint("Horizontal", 22),
    Sketcher.Constraint("Vertical", 23),
    Sketcher.Constraint("Vertical", 24),
    Sketcher.Constraint("Horizontal", 25),
    Sketcher.Constraint("Vertical", 26),
    Sketcher.Constraint("Horizontal", 27),
    Sketcher.Constraint("Horizontal", 28),
    Sketcher.Constraint("Vertical", 29),
    Sketcher.Constraint("Horizontal", 30),
    Sketcher.Constraint("Vertical", 31),
    Sketcher.Constraint("Symmetric", 11, 2, 16, 2, -1),
    Sketcher.Constraint("Symmetric", 9, 2, 18, 2, -1),
    Sketcher.Constraint("Symmetric", 13, 2, 20, 2, -1),
    Sketcher.Constraint("Symmetric", 15, 2, 22, 2, -1),
    Sketcher.Constraint("Symmetric", 3, 2, 24, 2, -1),
    Sketcher.Constraint("Symmetric", 1, 2, 26, 2, -1),
    Sketcher.Constraint("Symmetric", 7, 2, 28, 2, -1),
    Sketcher.Constraint("Symmetric", 5, 2, 30, 2, -1),
    Sketcher.Constraint("Vertical", 3, 2, 8, 2),
    Sketcher.Constraint("Vertical", 2, 2, 9, 2),
    Sketcher.Constraint("Vertical", 7, 2, 12, 2),
    Sketcher.Constraint("Vertical", 5, 2, 14, 2),
    Sketcher.Constraint("Equal", 2, 8),
    Sketcher.Constraint("Equal", 7, 13),
    Sketcher.Constraint("DistanceX", 0, 2, 4, 2, 1.0),
    Sketcher.Constraint("DistanceY", 4, 2, 0, 2, 1.0),
    Sketcher.Constraint("DistanceY", 3, 2, 5, 2, 1.0),
    Sketcher.Constraint("DistanceX", 6, 2, 2, 2, 1.0),
    Sketcher.Constraint("DistanceY", 10, 2, 2, 2, 50.0),
    Sketcher.Constraint("DistanceY", 10, 2, 12, 2, 1.0),
    Sketcher.Constraint("DistanceY", 18, 2, 10, 2, 50.0),
    Sketcher.Constraint("DistanceX", 1, 1, 1, 2, 20.0),
    Sketcher.Constraint("DistanceY", 0, 1, 0, 2, 10.0),
    Sketcher.Constraint("DistanceX", 0, 2, -1, 1, 105.0),
])
pocket3 = body.newObject("PartDesign::Pocket", "Pocket002")
pocket3.Profile = sketch7
pocket3.Length = 8
pocket3.Reversed = True

# Sketch on XY plane
sketch8 = body.newObject("Sketcher::SketchObject", "Sketch007")
sketch8.AttachmentSupport = (doc.getObject("XY_Plane"), [""])
sketch8.MapMode = "FlatFace"
sketch8.AttachmentOffset = App.Placement(App.Vector(0, 0, 55), App.Rotation())
sketch8.addGeometry([
    Part.LineSegment(App.Vector(-20, 35, 0), App.Vector(-20, 40, 0)),  # 0
    Part.LineSegment(App.Vector(-20, 40, 0), App.Vector(-40, 40, 0)),  # 1
    Part.LineSegment(App.Vector(-40, 40, 0), App.Vector(-40, 35, 0)),  # 2
    Part.LineSegment(App.Vector(-40, 35, 0), App.Vector(-20, 35, 0)),  # 3
    Part.LineSegment(App.Vector(-20, 10, 0), App.Vector(-20, 15, 0)),  # 4
    Part.LineSegment(App.Vector(-20, 15, 0), App.Vector(-40, 15, 0)),  # 5
    Part.LineSegment(App.Vector(-40, 15, 0), App.Vector(-40, 10, 0)),  # 6
    Part.LineSegment(App.Vector(-40, 10, 0), App.Vector(-20, 10, 0)),  # 7
], False)
sketch8.addConstraint([
    Sketcher.Constraint("Coincident", 0, 2, 1, 1),
    Sketcher.Constraint("Coincident", 1, 2, 2, 1),
    Sketcher.Constraint("Coincident", 2, 2, 3, 1),
    Sketcher.Constraint("Coincident", 3, 2, 0, 1),
    Sketcher.Constraint("Coincident", 4, 2, 5, 1),
    Sketcher.Constraint("Coincident", 5, 2, 6, 1),
    Sketcher.Constraint("Coincident", 6, 2, 7, 1),
    Sketcher.Constraint("Coincident", 7, 2, 4, 1),
    Sketcher.Constraint("Vertical", 0),
    Sketcher.Constraint("Horizontal", 1),
    Sketcher.Constraint("Vertical", 2),
    Sketcher.Constraint("Horizontal", 3),
    Sketcher.Constraint("Vertical", 4),
    Sketcher.Constraint("Horizontal", 5),
    Sketcher.Constraint("Vertical", 6),
    Sketcher.Constraint("Horizontal", 7),
    Sketcher.Constraint("Vertical", 3, 2, 4, 2),
    Sketcher.Constraint("Vertical", 2, 2, 5, 2),
    Sketcher.Constraint("Equal", 2, 4),
    Sketcher.Constraint("DistanceY", -1, 1, 6, 2, 10.0),
    Sketcher.Constraint("DistanceX", 1, 2, 1, 1, 20.0),
    Sketcher.Constraint("DistanceY", 0, 1, 0, 2, 5.0),
    Sketcher.Constraint("DistanceX", 0, 2, -1, 1, 20.0),
    Sketcher.Constraint("DistanceY", -1, 1, 0, 2, 40.0),
])
pad5 = body.newObject("PartDesign::Pad", "Pad004")
pad5.Profile = sketch8
pad5.Length = 10
pad5.Reversed = True

# Sketch on XY plane
sketch9 = body.newObject("Sketcher::SketchObject", "Sketch008")
sketch9.AttachmentSupport = (doc.getObject("XY_Plane"), [""])
sketch9.MapMode = "FlatFace"
sketch9.AttachmentOffset = App.Placement(App.Vector(0, 0, -55), App.Rotation())
sketch9.addGeometry([
    Part.LineSegment(App.Vector(-20, 40, 0), App.Vector(-20, 10, 0)),
    Part.LineSegment(App.Vector(-20, 10, 0), App.Vector(-40, 10, 0)),
    Part.LineSegment(App.Vector(-40, 10, 0), App.Vector(-40, 40, 0)),
    Part.LineSegment(App.Vector(-40, 40, 0), App.Vector(-20, 40, 0)),
], False)
sketch9.addConstraint([
    Sketcher.Constraint("Coincident", 0, 2, 1, 1),
    Sketcher.Constraint("Coincident", 1, 2, 2, 1),
    Sketcher.Constraint("Coincident", 2, 2, 3, 1),
    Sketcher.Constraint("Coincident", 3, 2, 0, 1),
    Sketcher.Constraint("Vertical", 0),
    Sketcher.Constraint("Horizontal", 1),
    Sketcher.Constraint("Vertical", 2),
    Sketcher.Constraint("Horizontal", 3),
    Sketcher.Constraint("DistanceY", -1, 1, 0, 2, 10.0),
    Sketcher.Constraint("DistanceX", 1, 2, 1, 1, 20.0),
    Sketcher.Constraint("DistanceY", 0, 2, 0, 1, 30.0),
    Sketcher.Constraint("DistanceX", 0, 2, -1, 1, 20.0),
])
pad6 = body.newObject("PartDesign::Pad", "Pad005")
pad6.Profile = sketch9
pad6.Length = 10

# Sketch on XZ plane
sketch10 = body.newObject("Sketcher::SketchObject", "Sketch009")
sketch10.AttachmentSupport = (doc.getObject("XZ_Plane"), [""])
sketch10.MapMode = "FlatFace"
sketch10.AttachmentOffset = App.Placement(App.Vector(0, 0, -58), App.Rotation())
sketch10.addGeometry([
    Part.LineSegment(App.Vector(0, 100, 0), App.Vector(0, 0, 0)),  # 0
    Part.LineSegment(App.Vector(0, 0, 0), App.Vector(180, 0, 0)),  # 1
    Part.LineSegment(App.Vector(180, 0, 0), App.Vector(180, -100, 0)),  # 2
    Part.LineSegment(App.Vector(180, -100, 0), App.Vector(-120, -100, 0)),  # 3
    Part.LineSegment(App.Vector(-120, -100, 0), App.Vector(-120, 100, 0)),  # 4
    Part.LineSegment(App.Vector(-120, 100, 0), App.Vector(0, 100, 0)),  # 5
], False)
sketch10.addConstraint([
    Sketcher.Constraint("Coincident", 0, 2, 1, 1),
    Sketcher.Constraint("Coincident", 1, 2, 2, 1),
    Sketcher.Constraint("Coincident", 2, 2, 3, 1),
    Sketcher.Constraint("Coincident", 3, 2, 4, 1),
    Sketcher.Constraint("Coincident", 4, 2, 5, 1),
    Sketcher.Constraint("Coincident", 5, 2, 0, 1),
    Sketcher.Constraint("Vertical", 0),
    Sketcher.Constraint("Horizontal", 1),
    Sketcher.Constraint("Vertical", 2),
    Sketcher.Constraint("Horizontal", 3),
    Sketcher.Constraint("Vertical", 4),
    Sketcher.Constraint("Horizontal", 5),
    Sketcher.Constraint("Coincident", 0, 2, -1, 1),
    Sketcher.Constraint("Equal", 0, 2),
    Sketcher.Constraint("DistanceX", 3, 2, 3, 1, 300.0),
    Sketcher.Constraint("DistanceX", 5, 1, 5, 2, 120.0),
    Sketcher.Constraint("DistanceY", 0, 2, 0, 1, 100.0),
])
pocket4 = body.newObject("PartDesign::Pocket", "Pocket003")
pocket4.Profile = sketch10
pocket4.Type = "ThroughAll"
pocket4.Reversed = True

doc.recompute()
